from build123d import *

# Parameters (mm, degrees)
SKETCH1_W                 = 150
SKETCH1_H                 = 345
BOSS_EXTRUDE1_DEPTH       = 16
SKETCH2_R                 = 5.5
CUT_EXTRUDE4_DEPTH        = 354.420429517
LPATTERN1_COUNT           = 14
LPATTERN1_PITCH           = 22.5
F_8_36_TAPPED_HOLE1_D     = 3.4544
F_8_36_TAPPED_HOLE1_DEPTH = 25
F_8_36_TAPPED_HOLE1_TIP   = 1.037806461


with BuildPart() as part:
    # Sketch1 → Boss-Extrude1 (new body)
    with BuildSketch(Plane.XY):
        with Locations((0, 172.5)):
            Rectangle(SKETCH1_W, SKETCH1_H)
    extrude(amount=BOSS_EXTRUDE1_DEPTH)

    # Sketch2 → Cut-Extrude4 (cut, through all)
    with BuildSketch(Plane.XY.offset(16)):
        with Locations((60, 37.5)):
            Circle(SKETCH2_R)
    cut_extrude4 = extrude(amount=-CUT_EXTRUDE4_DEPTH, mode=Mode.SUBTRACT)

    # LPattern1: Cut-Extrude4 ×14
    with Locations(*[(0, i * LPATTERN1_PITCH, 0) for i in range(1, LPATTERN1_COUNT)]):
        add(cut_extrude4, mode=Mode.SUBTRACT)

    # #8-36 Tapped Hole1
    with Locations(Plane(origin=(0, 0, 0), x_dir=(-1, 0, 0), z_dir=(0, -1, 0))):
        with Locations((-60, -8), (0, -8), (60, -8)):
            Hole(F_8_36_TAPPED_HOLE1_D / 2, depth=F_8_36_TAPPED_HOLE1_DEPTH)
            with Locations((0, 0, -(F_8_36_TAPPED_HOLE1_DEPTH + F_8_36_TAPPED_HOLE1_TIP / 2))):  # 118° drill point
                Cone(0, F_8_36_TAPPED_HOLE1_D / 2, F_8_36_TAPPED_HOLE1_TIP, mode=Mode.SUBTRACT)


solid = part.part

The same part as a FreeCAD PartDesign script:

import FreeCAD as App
import Part
import Sketcher

doc = App.newDocument("Part")
body = doc.addObject("PartDesign::Body", "Body")

# Sketch on XY plane
sketch1 = doc.addObject("Sketcher::SketchObject", "Sketch")
body.addObject(sketch1)
sketch1.AttachmentSupport = (doc.XY_Plane, [""])
sketch1.MapMode = "FlatFace"
sketch1.addGeometry([
    Part.LineSegment(App.Vector(-75, 345, 0), App.Vector(-75, 0, 0)),
    Part.LineSegment(App.Vector(-75, 0, 0), App.Vector(75, 0, 0)),
    Part.LineSegment(App.Vector(75, 0, 0), App.Vector(75, 345, 0)),
    Part.LineSegment(App.Vector(75, 345, 0), App.Vector(-75, 345, 0)),
], False)
sketch1.addConstraint([
    Sketcher.Constraint("Coincident", 0, 2, 1, 1),
    Sketcher.Constraint("Coincident", 1, 2, 2, 1),
    Sketcher.Constraint("Coincident", 2, 2, 3, 1),
    Sketcher.Constraint("Coincident", 3, 2, 0, 1),
    Sketcher.Constraint("Vertical", 0),
    Sketcher.Constraint("Horizontal", 1),
    Sketcher.Constraint("Vertical", 2),
    Sketcher.Constraint("Horizontal", 3),
    Sketcher.Constraint("Symmetric", 0, 2, 1, 2, -1, 1),
    Sketcher.Constraint("DistanceX", 1, 1, 1, 2, 150.0),
    Sketcher.Constraint("DistanceY", 0, 2, 0, 1, 345.0),
])
pad1 = doc.addObject("PartDesign::Pad", "Pad")
body.addObject(pad1)
pad1.Profile = sketch1
pad1.Length = 16

# Sketch on XY plane
sketch2 = doc.addObject("Sketcher::SketchObject", "Sketch001")
body.addObject(sketch2)
sketch2.AttachmentSupport = (doc.XY_Plane, [""])
sketch2.MapMode = "FlatFace"
sketch2.AttachmentOffset = App.Placement(App.Vector(0, 0, 16), App.Rotation())
sketch2.addGeometry(Part.Circle(App.Vector(60, 37.5, 0), App.Vector(0, 0, 1), 5.5), False)
sketch2.addConstraint([
    Sketcher.Constraint("Diameter", 0, 11.0),
    Sketcher.Constraint("DistanceX", -1, 1, 0, 3, 60.0),
    Sketcher.Constraint("DistanceY", -1, 1, 0, 3, 37.5),
])
pocket1 = doc.addObject("PartDesign::Pocket", "Pocket")
body.addObject(pocket1)
pocket1.Profile = sketch2
pocket1.Type = "ThroughAll"
doc.recompute()

linearpattern = doc.addObject("PartDesign::LinearPattern", "LinearPattern")
body.addObject(linearpattern)
linearpattern.Originals = [pocket1]
linearpattern.Direction = (doc.Y_Axis, [""])
linearpattern.Mode = "offset"
linearpattern.Offset = 22.5
linearpattern.Occurrences = 14
body.Tip = linearpattern

# Sketch on XZ plane
sketch3 = doc.addObject("Sketcher::SketchObject", "Sketch002")
body.addObject(sketch3)
sketch3.AttachmentSupport = (doc.XZ_Plane, [""])
sketch3.MapMode = "FlatFace"
sketch3.addGeometry([
    Part.Circle(App.Vector(60, 8, 0), App.Vector(0, 0, 1), 1.7272),
    Part.Circle(App.Vector(0, 8, 0), App.Vector(0, 0, 1), 1.7272),
    Part.Circle(App.Vector(-60, 8, 0), App.Vector(0, 0, 1), 1.7272),
], False)
sketch3.addConstraint([
    Sketcher.Constraint("Equal", 0, 1),
    Sketcher.Constraint("Equal", 1, 2),
    Sketcher.Constraint("Symmetric", 0, 3, 2, 3, -2),
    Sketcher.Constraint("PointOnObject", 1, 3, -2),
    Sketcher.Constraint("Horizontal", 0, 3, 1, 3),
    Sketcher.Constraint("DistanceX", -1, 1, 0, 3, 60.0),
    Sketcher.Constraint("DistanceY", -1, 1, 0, 3, 8.0),
    Sketcher.Constraint("Diameter", 0, 3.4544),
])
doc.recompute()
hole = doc.addObject("PartDesign::Hole", "Hole")
body.addObject(hole)
hole.Profile = sketch3
hole.ThreadType = "None"
hole.Diameter = 3.4544
hole.DepthType = "Dimension"
hole.Depth = 25
hole.DrillPoint = "Angled"
hole.DrillPointAngle = 118

doc.recompute()
